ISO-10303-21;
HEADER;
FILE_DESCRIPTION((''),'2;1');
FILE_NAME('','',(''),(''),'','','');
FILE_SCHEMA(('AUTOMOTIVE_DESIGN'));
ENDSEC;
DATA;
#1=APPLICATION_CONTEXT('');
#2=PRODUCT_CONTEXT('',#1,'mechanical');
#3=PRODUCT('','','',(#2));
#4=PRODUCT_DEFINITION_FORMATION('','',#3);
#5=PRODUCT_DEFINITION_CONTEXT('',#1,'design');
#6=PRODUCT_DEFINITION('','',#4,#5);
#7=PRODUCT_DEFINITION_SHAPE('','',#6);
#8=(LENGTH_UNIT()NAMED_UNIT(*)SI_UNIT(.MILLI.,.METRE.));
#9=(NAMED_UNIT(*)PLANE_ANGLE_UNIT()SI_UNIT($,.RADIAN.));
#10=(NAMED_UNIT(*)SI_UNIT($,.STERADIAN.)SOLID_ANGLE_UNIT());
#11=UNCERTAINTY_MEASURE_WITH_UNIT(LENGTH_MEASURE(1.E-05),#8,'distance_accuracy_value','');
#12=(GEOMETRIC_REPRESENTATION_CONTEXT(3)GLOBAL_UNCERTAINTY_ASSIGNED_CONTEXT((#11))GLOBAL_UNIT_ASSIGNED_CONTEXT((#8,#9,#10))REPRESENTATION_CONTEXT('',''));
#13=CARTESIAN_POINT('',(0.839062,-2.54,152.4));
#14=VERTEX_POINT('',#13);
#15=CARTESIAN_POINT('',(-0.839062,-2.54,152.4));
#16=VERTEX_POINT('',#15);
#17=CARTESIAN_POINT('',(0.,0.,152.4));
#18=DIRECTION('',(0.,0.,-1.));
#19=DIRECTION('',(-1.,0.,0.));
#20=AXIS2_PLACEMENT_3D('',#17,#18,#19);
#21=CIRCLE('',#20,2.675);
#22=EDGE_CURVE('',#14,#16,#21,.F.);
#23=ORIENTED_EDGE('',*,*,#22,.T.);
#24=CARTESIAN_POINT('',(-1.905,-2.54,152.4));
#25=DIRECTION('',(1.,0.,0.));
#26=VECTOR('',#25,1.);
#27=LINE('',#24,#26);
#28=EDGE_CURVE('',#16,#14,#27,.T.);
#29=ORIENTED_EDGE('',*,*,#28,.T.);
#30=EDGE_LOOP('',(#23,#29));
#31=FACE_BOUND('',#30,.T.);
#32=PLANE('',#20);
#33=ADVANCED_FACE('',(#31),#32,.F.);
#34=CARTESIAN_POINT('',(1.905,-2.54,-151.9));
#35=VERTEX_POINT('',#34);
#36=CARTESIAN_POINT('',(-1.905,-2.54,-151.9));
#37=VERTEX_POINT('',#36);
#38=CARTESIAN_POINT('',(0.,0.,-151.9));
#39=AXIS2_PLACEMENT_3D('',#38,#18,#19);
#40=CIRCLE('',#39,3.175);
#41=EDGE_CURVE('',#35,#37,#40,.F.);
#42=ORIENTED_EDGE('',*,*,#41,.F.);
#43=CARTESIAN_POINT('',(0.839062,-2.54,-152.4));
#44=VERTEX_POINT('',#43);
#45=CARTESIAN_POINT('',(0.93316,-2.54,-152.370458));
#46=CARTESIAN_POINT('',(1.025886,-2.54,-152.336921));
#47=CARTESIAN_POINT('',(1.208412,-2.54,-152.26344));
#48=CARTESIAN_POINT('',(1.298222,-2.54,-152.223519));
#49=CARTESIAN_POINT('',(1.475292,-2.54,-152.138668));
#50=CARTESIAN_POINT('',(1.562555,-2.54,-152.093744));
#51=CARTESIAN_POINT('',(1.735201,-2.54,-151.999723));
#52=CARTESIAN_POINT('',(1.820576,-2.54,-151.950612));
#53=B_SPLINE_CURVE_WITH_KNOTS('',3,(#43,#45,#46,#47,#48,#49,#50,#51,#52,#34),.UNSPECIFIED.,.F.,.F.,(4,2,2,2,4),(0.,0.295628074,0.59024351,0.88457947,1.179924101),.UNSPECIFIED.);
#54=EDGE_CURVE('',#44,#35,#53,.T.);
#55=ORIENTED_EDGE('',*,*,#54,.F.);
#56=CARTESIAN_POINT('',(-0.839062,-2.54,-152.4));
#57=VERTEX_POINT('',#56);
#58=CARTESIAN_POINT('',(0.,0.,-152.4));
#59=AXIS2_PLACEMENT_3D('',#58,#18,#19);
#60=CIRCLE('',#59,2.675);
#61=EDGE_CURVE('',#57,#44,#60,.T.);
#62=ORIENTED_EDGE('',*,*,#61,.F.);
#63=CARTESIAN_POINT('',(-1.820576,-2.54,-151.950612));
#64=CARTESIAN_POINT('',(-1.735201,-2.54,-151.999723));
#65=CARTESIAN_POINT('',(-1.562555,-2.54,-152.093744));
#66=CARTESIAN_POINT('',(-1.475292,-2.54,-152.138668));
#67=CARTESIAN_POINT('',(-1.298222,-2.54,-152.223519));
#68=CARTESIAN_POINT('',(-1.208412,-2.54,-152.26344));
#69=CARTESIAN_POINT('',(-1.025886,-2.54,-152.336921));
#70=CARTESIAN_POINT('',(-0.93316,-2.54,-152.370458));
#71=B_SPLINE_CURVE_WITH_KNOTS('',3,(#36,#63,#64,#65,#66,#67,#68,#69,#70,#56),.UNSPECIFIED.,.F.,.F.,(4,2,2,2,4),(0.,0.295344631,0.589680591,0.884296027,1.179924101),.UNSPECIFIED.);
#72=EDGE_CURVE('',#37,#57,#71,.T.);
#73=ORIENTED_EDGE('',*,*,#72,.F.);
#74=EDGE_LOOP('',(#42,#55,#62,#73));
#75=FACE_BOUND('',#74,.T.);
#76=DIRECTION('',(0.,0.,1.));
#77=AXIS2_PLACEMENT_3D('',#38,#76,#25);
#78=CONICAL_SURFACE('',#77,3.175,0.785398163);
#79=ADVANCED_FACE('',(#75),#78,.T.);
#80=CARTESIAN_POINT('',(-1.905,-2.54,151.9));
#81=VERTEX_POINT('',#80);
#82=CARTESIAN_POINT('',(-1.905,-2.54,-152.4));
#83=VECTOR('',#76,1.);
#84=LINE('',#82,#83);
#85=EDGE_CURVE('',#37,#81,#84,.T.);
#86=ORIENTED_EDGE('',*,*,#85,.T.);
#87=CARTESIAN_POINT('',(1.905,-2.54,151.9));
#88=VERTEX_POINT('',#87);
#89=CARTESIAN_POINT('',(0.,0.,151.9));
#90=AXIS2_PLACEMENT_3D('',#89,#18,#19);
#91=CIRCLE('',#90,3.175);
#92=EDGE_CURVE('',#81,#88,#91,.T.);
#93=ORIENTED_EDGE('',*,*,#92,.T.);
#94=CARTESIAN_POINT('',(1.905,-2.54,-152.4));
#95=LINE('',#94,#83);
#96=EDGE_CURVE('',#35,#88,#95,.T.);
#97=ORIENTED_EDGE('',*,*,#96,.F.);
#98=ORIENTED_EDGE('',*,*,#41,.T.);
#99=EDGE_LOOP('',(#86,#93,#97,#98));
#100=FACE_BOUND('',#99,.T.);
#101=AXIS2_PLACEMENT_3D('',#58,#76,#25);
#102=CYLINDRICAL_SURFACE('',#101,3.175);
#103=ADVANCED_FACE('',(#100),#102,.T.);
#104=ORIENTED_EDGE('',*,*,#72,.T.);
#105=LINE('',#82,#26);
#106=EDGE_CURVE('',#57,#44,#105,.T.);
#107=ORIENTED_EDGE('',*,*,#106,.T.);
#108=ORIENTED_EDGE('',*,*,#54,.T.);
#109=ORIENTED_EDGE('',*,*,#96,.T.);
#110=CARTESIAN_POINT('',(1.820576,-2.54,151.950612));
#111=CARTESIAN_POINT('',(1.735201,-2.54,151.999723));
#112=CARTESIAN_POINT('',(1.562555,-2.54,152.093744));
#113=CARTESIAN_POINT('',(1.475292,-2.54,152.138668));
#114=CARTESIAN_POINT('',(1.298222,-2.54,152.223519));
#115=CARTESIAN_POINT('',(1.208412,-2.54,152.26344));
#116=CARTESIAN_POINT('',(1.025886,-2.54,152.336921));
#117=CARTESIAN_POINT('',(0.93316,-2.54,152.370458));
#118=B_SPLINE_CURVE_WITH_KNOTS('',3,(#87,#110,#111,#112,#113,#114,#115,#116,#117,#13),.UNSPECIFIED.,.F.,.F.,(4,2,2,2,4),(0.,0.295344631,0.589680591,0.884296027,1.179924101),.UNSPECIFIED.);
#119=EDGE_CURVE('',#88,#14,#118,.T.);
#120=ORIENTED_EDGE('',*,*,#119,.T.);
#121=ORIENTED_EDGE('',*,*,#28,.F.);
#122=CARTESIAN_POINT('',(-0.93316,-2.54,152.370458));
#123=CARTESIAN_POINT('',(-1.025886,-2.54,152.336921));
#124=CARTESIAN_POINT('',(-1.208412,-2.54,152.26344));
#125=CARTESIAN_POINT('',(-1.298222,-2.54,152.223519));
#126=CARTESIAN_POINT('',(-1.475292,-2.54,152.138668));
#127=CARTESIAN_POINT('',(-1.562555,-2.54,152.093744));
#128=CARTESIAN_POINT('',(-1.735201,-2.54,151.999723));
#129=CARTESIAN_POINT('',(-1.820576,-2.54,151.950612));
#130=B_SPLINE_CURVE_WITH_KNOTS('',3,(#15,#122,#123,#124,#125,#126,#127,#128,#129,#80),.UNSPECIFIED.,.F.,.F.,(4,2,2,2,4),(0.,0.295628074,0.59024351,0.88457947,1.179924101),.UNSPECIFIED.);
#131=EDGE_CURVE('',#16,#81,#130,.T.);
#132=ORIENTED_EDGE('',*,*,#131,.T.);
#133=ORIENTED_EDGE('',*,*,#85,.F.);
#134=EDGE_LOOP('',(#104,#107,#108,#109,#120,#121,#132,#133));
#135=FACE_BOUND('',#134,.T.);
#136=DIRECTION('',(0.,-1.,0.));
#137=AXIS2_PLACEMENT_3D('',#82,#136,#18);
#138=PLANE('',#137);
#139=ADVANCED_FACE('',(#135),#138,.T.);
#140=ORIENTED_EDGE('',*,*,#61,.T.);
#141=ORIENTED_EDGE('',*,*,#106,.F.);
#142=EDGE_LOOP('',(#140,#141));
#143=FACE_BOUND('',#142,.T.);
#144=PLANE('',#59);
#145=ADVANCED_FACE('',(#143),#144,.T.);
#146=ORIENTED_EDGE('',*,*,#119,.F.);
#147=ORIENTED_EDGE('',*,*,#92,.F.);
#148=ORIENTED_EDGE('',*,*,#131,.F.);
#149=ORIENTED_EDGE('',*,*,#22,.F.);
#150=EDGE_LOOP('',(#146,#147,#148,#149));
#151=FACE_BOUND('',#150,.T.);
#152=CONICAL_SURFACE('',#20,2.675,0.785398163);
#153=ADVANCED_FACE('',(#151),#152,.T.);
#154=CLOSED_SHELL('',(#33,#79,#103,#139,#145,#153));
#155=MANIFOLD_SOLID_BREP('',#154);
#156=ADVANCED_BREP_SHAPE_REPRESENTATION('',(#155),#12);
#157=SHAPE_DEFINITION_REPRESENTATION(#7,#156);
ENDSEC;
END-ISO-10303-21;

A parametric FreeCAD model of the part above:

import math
import FreeCAD as App
import Part
import Sketcher

V = App.Vector
Q = App.Units.Quantity


def edges_at(feature, points):
    """Names of the edges that pass closest to the given points."""
    edges = feature.Shape.Edges
    near = lambda p: min(range(len(edges)), key=lambda i: edges[i].distToShape(Part.Vertex(*p))[0])
    return sorted({f"Edge{near(p) + 1}" for p in points})

doc = App.newDocument("Part")
body = doc.addObject("PartDesign::Body", "Body")

# Sketch on XY plane
sketch1 = doc.addObject("Sketcher::SketchObject", "Sketch")
body.addObject(sketch1)
sketch1.AttachmentSupport = (doc.XY_Plane, [""])
sketch1.MapMode = "FlatFace"
sketch1.addGeometry(Part.LineSegment(V(-1.9, -2.5, 0), V(1.9, -2.5, 0)), False)
sketch1.addGeometry(Part.ArcOfCircle(Part.Circle(V(0, 0, 0), V(0, 0, 1), 3.2), math.radians(-53), math.radians(233)), False)
sketch1.addConstraint(Sketcher.Constraint("Coincident", 0, 1, 1, 2))
sketch1.addConstraint(Sketcher.Constraint("Coincident", 1, 1, 0, 2))
sketch1.addConstraint(Sketcher.Constraint("Horizontal", 0))
sketch1.addConstraint(Sketcher.Constraint("Coincident", 1, 3, -1, 1))
sketch1.addConstraint(Sketcher.Constraint("Radius", 1, Q("0.125 in")))
sketch1.addConstraint(Sketcher.Constraint("DistanceX", 0, 1, 0, 2, Q("0.15 in")))

# Sketch on XZ plane
sketch2 = doc.addObject("Sketcher::SketchObject", "Sketch001")
body.addObject(sketch2)
sketch2.AttachmentSupport = (doc.XZ_Plane, [""])
sketch2.MapMode = "FlatFace"
sketch2.addGeometry(Part.LineSegment(V(0, 152, 0), V(0, -152, 0)), False)
sketch2.addConstraint(Sketcher.Constraint("Vertical", 0))
sketch2.addConstraint(Sketcher.Constraint("Symmetric", 0, 1, 0, 2, -1, 1))
sketch2.addConstraint(Sketcher.Constraint("DistanceY", 0, 2, 0, 1, Q("12 in")))
doc.recompute()

additivepipe = doc.addObject("PartDesign::AdditivePipe", "AdditivePipe")
body.addObject(additivepipe)
additivepipe.Profile = sketch1
additivepipe.Spine = (sketch2, ["Edge1"])
doc.recompute()

chamfer = doc.addObject("PartDesign::Chamfer", "Chamfer")
body.addObject(chamfer)
chamfer.Base = (additivepipe, edges_at(additivepipe, [(0, 3.175, 152.4), (0, 3.175, -152.4)]))
chamfer.Size = 0.5

doc.recompute()
